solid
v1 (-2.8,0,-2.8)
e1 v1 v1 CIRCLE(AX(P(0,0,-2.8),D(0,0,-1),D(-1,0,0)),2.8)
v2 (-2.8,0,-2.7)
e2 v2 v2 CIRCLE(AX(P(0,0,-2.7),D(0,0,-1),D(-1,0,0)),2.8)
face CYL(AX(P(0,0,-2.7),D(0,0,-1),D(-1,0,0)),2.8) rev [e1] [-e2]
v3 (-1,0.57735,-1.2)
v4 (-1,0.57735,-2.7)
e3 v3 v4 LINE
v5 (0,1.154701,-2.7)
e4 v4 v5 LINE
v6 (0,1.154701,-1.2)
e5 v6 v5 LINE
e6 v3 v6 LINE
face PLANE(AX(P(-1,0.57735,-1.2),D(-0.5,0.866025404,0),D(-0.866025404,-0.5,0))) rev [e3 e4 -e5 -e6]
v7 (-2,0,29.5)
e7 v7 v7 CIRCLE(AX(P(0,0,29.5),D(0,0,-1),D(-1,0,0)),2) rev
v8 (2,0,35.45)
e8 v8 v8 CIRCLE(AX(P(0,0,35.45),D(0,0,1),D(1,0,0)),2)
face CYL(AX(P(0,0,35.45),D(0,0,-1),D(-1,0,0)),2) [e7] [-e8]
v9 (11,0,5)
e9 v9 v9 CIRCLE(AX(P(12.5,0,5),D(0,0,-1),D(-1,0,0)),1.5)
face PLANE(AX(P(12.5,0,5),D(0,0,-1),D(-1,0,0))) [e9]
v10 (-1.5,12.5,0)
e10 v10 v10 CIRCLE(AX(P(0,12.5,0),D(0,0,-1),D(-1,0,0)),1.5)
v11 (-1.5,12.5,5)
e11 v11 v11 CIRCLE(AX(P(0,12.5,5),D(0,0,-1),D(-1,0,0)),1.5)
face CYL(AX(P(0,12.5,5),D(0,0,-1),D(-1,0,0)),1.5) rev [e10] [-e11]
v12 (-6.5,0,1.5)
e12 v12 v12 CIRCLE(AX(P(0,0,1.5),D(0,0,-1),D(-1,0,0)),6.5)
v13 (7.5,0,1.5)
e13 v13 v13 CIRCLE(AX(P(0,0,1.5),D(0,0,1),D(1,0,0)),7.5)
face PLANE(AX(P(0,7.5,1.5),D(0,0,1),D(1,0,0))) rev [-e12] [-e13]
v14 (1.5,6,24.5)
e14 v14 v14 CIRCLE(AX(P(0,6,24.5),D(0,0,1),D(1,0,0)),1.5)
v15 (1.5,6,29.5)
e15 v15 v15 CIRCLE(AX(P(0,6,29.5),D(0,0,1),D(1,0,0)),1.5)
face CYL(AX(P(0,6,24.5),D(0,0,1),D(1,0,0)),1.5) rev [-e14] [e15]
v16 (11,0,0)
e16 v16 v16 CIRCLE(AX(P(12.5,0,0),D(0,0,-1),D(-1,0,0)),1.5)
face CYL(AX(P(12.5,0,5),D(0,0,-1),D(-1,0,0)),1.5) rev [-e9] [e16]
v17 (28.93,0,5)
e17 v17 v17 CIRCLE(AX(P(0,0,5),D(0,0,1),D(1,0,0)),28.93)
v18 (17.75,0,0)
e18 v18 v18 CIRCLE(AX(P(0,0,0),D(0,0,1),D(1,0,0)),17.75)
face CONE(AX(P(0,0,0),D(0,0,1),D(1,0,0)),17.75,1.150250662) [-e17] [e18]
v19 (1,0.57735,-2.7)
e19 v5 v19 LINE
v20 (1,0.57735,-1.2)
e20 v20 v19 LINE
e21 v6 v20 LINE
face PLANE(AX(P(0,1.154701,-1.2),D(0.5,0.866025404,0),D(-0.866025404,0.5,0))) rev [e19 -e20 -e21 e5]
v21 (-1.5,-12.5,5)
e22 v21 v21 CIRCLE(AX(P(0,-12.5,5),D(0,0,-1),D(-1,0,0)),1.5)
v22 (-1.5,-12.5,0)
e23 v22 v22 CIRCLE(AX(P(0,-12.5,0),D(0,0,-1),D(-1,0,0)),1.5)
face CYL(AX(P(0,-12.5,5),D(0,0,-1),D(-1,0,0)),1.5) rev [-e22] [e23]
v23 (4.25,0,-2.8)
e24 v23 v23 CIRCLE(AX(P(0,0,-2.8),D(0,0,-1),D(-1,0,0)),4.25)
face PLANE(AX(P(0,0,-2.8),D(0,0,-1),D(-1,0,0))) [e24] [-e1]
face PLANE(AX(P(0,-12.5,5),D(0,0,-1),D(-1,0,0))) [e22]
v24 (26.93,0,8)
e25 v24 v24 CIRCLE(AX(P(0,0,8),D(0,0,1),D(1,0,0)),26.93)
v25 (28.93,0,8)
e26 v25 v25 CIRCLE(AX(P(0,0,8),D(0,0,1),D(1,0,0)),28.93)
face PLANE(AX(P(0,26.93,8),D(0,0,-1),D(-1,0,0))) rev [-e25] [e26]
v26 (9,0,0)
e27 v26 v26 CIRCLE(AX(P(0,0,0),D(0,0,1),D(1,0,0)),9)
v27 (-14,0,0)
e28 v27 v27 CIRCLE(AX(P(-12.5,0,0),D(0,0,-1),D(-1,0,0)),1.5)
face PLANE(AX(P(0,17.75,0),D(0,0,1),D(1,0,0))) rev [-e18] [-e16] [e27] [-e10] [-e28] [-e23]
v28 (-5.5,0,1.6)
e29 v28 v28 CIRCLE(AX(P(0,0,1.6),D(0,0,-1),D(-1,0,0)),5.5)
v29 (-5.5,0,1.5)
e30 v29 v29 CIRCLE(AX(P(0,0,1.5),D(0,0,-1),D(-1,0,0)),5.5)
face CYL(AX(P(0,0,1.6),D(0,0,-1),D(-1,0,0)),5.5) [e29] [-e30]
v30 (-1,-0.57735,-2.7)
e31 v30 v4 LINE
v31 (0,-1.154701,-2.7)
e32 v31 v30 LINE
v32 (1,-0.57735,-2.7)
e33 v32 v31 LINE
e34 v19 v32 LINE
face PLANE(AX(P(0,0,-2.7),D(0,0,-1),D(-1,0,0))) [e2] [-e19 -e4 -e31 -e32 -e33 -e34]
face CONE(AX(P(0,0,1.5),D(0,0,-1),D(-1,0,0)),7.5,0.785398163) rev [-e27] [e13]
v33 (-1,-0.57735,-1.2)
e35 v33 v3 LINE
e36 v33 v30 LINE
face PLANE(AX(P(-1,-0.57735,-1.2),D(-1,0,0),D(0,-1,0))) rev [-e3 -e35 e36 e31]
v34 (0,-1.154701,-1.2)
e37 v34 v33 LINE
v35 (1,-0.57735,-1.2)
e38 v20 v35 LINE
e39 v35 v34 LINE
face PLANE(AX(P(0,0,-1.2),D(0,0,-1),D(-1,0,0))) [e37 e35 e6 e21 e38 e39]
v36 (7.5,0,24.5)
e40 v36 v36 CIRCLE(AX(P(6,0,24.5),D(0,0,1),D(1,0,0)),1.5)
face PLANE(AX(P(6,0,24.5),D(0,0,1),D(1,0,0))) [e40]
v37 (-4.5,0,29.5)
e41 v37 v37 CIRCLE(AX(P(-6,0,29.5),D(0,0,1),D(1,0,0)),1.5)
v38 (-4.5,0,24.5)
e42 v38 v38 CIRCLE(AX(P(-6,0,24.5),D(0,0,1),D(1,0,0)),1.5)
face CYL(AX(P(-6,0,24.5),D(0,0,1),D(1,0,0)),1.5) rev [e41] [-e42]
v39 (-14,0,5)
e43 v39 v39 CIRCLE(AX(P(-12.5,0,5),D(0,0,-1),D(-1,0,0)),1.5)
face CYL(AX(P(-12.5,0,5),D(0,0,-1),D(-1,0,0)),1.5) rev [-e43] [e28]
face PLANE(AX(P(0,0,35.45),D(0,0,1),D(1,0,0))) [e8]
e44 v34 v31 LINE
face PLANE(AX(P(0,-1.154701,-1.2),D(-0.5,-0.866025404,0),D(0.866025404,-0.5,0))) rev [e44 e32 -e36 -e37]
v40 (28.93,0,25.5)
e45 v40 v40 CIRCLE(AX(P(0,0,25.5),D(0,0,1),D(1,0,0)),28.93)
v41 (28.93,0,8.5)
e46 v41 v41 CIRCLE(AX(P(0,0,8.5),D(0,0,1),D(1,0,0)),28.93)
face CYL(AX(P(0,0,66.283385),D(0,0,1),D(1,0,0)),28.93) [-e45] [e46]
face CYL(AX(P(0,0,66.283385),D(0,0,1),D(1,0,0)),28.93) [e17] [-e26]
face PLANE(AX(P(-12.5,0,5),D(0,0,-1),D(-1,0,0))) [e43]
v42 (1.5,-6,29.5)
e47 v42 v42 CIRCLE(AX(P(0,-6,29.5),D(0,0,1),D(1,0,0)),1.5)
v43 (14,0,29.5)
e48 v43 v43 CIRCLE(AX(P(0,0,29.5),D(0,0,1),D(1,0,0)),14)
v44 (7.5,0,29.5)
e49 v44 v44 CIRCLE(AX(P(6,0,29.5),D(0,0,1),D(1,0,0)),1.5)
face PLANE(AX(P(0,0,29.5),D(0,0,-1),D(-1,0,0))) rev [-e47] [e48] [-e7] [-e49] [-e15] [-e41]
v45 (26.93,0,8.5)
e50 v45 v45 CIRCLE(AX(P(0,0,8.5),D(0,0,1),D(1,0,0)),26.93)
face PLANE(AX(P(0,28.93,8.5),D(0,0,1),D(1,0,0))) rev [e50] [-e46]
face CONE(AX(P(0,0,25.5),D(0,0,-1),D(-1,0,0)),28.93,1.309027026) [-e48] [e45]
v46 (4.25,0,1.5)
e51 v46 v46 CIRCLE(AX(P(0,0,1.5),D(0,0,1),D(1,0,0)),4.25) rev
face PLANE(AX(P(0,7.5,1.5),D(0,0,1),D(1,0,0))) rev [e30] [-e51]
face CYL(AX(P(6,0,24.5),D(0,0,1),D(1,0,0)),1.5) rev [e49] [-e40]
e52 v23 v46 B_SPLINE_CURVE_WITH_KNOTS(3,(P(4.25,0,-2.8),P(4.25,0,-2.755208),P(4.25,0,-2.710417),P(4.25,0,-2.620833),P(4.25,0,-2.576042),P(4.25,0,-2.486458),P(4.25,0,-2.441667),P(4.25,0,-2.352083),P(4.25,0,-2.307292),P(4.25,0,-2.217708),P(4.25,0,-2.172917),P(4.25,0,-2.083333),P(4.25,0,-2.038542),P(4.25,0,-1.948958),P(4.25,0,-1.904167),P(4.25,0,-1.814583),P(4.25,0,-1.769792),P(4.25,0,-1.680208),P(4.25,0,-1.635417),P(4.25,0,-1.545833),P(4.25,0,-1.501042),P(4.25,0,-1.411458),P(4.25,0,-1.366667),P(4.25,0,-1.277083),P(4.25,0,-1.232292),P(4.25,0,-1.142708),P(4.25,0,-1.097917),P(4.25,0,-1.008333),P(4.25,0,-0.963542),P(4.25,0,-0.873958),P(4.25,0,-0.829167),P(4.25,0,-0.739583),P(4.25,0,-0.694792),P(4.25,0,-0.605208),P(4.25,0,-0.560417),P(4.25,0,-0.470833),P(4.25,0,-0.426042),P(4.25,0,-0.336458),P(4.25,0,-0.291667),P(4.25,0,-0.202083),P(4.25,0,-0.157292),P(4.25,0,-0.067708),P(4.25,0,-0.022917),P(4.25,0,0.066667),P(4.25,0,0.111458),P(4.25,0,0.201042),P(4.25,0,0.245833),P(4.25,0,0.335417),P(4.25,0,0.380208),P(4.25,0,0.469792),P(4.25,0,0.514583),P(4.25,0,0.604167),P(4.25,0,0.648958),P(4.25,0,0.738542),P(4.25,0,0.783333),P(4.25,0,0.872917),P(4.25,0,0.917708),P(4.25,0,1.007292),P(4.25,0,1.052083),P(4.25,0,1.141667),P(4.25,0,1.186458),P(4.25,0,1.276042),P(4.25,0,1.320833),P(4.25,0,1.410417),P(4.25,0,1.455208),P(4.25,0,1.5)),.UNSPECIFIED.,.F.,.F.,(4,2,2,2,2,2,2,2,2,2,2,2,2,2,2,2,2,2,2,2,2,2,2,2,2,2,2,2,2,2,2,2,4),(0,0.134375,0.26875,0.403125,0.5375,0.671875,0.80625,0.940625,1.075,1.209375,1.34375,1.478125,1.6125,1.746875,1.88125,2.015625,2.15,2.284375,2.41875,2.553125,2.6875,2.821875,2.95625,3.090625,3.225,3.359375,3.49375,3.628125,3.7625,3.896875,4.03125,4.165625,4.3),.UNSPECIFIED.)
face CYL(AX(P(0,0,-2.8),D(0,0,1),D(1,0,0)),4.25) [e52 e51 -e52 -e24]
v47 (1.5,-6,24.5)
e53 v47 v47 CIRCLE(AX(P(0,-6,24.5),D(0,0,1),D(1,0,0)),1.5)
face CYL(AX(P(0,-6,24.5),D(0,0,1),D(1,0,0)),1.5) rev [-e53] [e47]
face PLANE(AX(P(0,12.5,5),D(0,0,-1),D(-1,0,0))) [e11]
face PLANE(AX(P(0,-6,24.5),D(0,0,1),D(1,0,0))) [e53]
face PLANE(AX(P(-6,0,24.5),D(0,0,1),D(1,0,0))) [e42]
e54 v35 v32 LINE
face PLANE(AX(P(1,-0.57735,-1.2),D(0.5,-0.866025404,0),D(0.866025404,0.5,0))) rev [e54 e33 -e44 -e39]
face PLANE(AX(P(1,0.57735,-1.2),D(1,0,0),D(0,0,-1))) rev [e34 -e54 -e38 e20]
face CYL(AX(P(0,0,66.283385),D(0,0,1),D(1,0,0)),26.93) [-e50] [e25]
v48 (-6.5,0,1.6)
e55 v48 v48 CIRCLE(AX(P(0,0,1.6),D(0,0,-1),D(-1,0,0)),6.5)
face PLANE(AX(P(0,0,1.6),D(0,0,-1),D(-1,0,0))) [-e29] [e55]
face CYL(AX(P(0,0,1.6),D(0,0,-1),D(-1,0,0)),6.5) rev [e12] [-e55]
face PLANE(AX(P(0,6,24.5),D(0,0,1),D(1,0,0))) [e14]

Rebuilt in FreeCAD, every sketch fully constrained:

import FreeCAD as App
import Part
import Sketcher

V = App.Vector
Q = App.Units.Quantity


def add_polygon(sketch, points):
    """Adds a closed chain of lines whose ends are joined by coincident constraints."""
    first, n = sketch.GeometryCount, len(points)
    for a, b in zip(points, points[1:] + points[:1]):
        sketch.addGeometry(Part.LineSegment(App.Vector(*a, 0), App.Vector(*b, 0)), False)
    for i in range(n):
        sketch.addConstraint(Sketcher.Constraint("Coincident", first + i, 2, first + (i + 1) % n, 1))

doc = App.newDocument("Part")
body = doc.addObject("PartDesign::Body", "Body")

sketch1 = body.newObject("Sketcher::SketchObject", "Sketch")
sketch1.AttachmentSupport = (doc.getObject("YZ_Plane"), [""])
sketch1.MapMode = "FlatFace"
add_polygon(sketch1, [(14, 29.5), (0, 29.5), (0, 1.5), (7.5, 1.5), (9, 0), (17.8, 0), (28.9, 5), (28.9, 8), (26.9, 8), (26.9, 8.5), (28.9, 8.5), (28.9, 25.5)])
sketch1.addConstraint(Sketcher.Constraint("Horizontal", 0))
sketch1.addConstraint(Sketcher.Constraint("Vertical", 1))
sketch1.addConstraint(Sketcher.Constraint("Horizontal", 2))
sketch1.addConstraint(Sketcher.Constraint("Horizontal", 4))
sketch1.addConstraint(Sketcher.Constraint("Vertical", 6))
sketch1.addConstraint(Sketcher.Constraint("Horizontal", 7))
sketch1.addConstraint(Sketcher.Constraint("Vertical", 8))
sketch1.addConstraint(Sketcher.Constraint("Horizontal", 9))
sketch1.addConstraint(Sketcher.Constraint("Vertical", 10))
sketch1.addConstraint(Sketcher.Constraint("PointOnObject", 0, 2, -2))
sketch1.addConstraint(Sketcher.Constraint("PointOnObject", 3, 2, -1))
sketch1.addConstraint(Sketcher.Constraint("Vertical", 6, 2, 9, 2))
sketch1.addConstraint(Sketcher.Constraint("DistanceX", 0, 2, 0, 1, 14.0))
sketch1.addConstraint(Sketcher.Constraint("DistanceX", 7, 2, 7, 1, 2.0))
sketch1.addConstraint(Sketcher.Constraint("DistanceY", 1, 2, 1, 1, 28.0))
sketch1.addConstraint(Sketcher.Constraint("DistanceY", 6, 1, 6, 2, 3.0))
sketch1.addConstraint(Sketcher.Constraint("DistanceY", 10, 1, 10, 2, 17.0))
sketch1.addConstraint(Sketcher.Constraint("Angle", 3, Q("-45 deg")))
sketch1.addConstraint(Sketcher.Constraint("DistanceX", 2, 1, 2, 2, 7.5))
sketch1.addConstraint(Sketcher.Constraint("DistanceY", 8, 1, 8, 2, 0.5))
sketch1.addConstraint(Sketcher.Constraint("DistanceX", -1, 1, 3, 2, 9.0))
sketch1.addConstraint(Sketcher.Constraint("DistanceY", -1, 1, 5, 2, 5.0))
sketch1.addConstraint(Sketcher.Constraint("DistanceX", 4, 1, 4, 2, 8.75))
sketch1.addConstraint(Sketcher.Constraint("DistanceX", -1, 1, 5, 2, 28.93))
revolution = body.newObject("PartDesign::Revolution", "Revolution")
revolution.Profile = sketch1
revolution.ReferenceAxis = (sketch1, ["V_Axis"])
revolution.Angle = 360

sketch2 = body.newObject("Sketcher::SketchObject", "Sketch001")
sketch2.AttachmentSupport = (doc.getObject("XY_Plane"), [""])
sketch2.MapMode = "FlatFace"
sketch2.AttachmentOffset = App.Placement(V(0, 0, 29.5), App.Rotation())
sketch2.addGeometry(Part.Circle(V(0, 0, 0), V(0, 0, 1), 2), False)
sketch2.addConstraint(Sketcher.Constraint("Coincident", 0, 3, -1, 1))
sketch2.addConstraint(Sketcher.Constraint("Diameter", 0, 4.0))
pad1 = body.newObject("PartDesign::Pad", "Pad")
pad1.Profile = sketch2
pad1.Length = 5.95

sketch3 = body.newObject("Sketcher::SketchObject", "Sketch002")
sketch3.AttachmentSupport = (doc.getObject("XY_Plane"), [""])
sketch3.MapMode = "FlatFace"
sketch3.AttachmentOffset = App.Placement(V(0, 0, 29.5), App.Rotation())
sketch3.addGeometry(Part.Circle(V(0, 6, 0), V(0, 0, 1), 1.5), False)
sketch3.addGeometry(Part.Circle(V(6, 0, 0), V(0, 0, 1), 1.5), False)
sketch3.addGeometry(Part.Circle(V(0, -6, 0), V(0, 0, 1), 1.5), False)
sketch3.addGeometry(Part.Circle(V(-6, 0, 0), V(0, 0, 1), 1.5), False)
sketch3.addConstraint(Sketcher.Constraint("Equal", 0, 1))
sketch3.addConstraint(Sketcher.Constraint("Equal", 1, 2))
sketch3.addConstraint(Sketcher.Constraint("Equal", 2, 3))
sketch3.addConstraint(Sketcher.Constraint("Symmetric", 0, 3, 2, 3, -1, 1))
sketch3.addConstraint(Sketcher.Constraint("Symmetric", 1, 3, 3, 3, -1, 1))
sketch3.addConstraint(Sketcher.Constraint("PointOnObject", 0, 3, -2))
sketch3.addConstraint(Sketcher.Constraint("PointOnObject", 1, 3, -1))
sketch3.addConstraint(Sketcher.Constraint("Diameter", 0, 3.0))
sketch3.addConstraint(Sketcher.Constraint("DistanceY", -1, 1, 0, 3, 6.0))
sketch3.addConstraint(Sketcher.Constraint("DistanceX", -1, 1, 1, 3, 6.0))
pocket1 = body.newObject("PartDesign::Pocket", "Pocket")
pocket1.Profile = sketch3
pocket1.Length = 5

sketch4 = body.newObject("Sketcher::SketchObject", "Sketch003")
sketch4.AttachmentSupport = (doc.getObject("XY_Plane"), [""])
sketch4.MapMode = "FlatFace"
sketch4.addGeometry(Part.Circle(V(0, 12.5, 0), V(0, 0, 1), 1.5), False)
sketch4.addGeometry(Part.Circle(V(-12.5, 0, 0), V(0, 0, 1), 1.5), False)
sketch4.addGeometry(Part.Circle(V(0, -12.5, 0), V(0, 0, 1), 1.5), False)
sketch4.addGeometry(Part.Circle(V(12.5, 0, 0), V(0, 0, 1), 1.5), False)
sketch4.addConstraint(Sketcher.Constraint("Equal", 0, 1))
sketch4.addConstraint(Sketcher.Constraint("Equal", 1, 2))
sketch4.addConstraint(Sketcher.Constraint("Equal", 2, 3))
sketch4.addConstraint(Sketcher.Constraint("Symmetric", 0, 3, 2, 3, -1, 1))
sketch4.addConstraint(Sketcher.Constraint("Symmetric", 1, 3, 3, 3, -1, 1))
sketch4.addConstraint(Sketcher.Constraint("PointOnObject", 0, 3, -2))
sketch4.addConstraint(Sketcher.Constraint("PointOnObject", 1, 3, -1))
sketch4.addConstraint(Sketcher.Constraint("Diameter", 0, 3.0))
sketch4.addConstraint(Sketcher.Constraint("DistanceY", 2, 3, 0, 3, 25.0))
sketch4.addConstraint(Sketcher.Constraint("DistanceX", 1, 3, 3, 3, 25.0))
pocket2 = body.newObject("PartDesign::Pocket", "Pocket001")
pocket2.Profile = sketch4
pocket2.Length = 5
pocket2.Reversed = True

sketch5 = body.newObject("Sketcher::SketchObject", "Sketch004")
sketch5.AttachmentSupport = (doc.getObject("XY_Plane"), [""])
sketch5.MapMode = "FlatFace"
sketch5.AttachmentOffset = App.Placement(V(0, 0, 1.5), App.Rotation())
sketch5.addGeometry(Part.Circle(V(0, 0, 0), V(0, 0, 1), 4.2), False)
sketch5.addConstraint(Sketcher.Constraint("Coincident", 0, 3, -1, 1))
sketch5.addConstraint(Sketcher.Constraint("Diameter", 0, 8.5))
pad2 = body.newObject("PartDesign::Pad", "Pad001")
pad2.Profile = sketch5
pad2.Length = 4.3
pad2.Reversed = True

sketch6 = body.newObject("Sketcher::SketchObject", "Sketch005")
sketch6.AttachmentSupport = (doc.getObject("XY_Plane"), [""])
sketch6.MapMode = "FlatFace"
sketch6.AttachmentOffset = App.Placement(V(0, 0, -2.8), App.Rotation())
sketch6.addGeometry(Part.Circle(V(0, 0, 0), V(0, 0, 1), 2.8), False)
sketch6.addConstraint(Sketcher.Constraint("Coincident", 0, 3, -1, 1))
sketch6.addConstraint(Sketcher.Constraint("Diameter", 0, 5.6))
pocket3 = body.newObject("PartDesign::Pocket", "Pocket002")
pocket3.Profile = sketch6
pocket3.Length = 0.1
pocket3.Reversed = True

sketch7 = body.newObject("Sketcher::SketchObject", "Sketch006")
sketch7.AttachmentSupport = (doc.getObject("XY_Plane"), [""])
sketch7.MapMode = "FlatFace"
sketch7.AttachmentOffset = App.Placement(V(0, 0, -2.7), App.Rotation())
add_polygon(sketch7, [(0, -1.2), (-1, -0.6), (-1, 0.6), (0, 1.2), (1, 0.6), (1, -0.6)])
sketch7.addConstraint(Sketcher.Constraint("Vertical", 1))
sketch7.addConstraint(Sketcher.Constraint("Vertical", 4))
sketch7.addConstraint(Sketcher.Constraint("Symmetric", 0, 2, 3, 2, -1, 1))
sketch7.addConstraint(Sketcher.Constraint("Symmetric", 2, 2, 5, 2, -1, 1))
sketch7.addConstraint(Sketcher.Constraint("PointOnObject", 2, 2, -2))
sketch7.addConstraint(Sketcher.Constraint("Parallel", 2, 5))
sketch7.addConstraint(Sketcher.Constraint("Horizontal", 1, 2, 3, 2))
sketch7.addConstraint(Sketcher.Constraint("Angle", 0, Q("150 deg")))
sketch7.addConstraint(Sketcher.Constraint("DistanceX", 0, 2, -1, 1, 1.0))
sketch7.addConstraint(Sketcher.Constraint("DistanceY", 1, 1, 1, 2, 1.154701))
pocket4 = body.newObject("PartDesign::Pocket", "Pocket003")
pocket4.Profile = sketch7
pocket4.Length = 1.5
pocket4.Reversed = True

sketch8 = body.newObject("Sketcher::SketchObject", "Sketch007")
sketch8.AttachmentSupport = (doc.getObject("XY_Plane"), [""])
sketch8.MapMode = "FlatFace"
sketch8.AttachmentOffset = App.Placement(V(0, 0, 1.5), App.Rotation())
sketch8.addGeometry(Part.Circle(V(0, 0, 0), V(0, 0, 1), 6), False)
sketch8.addGeometry(Part.Circle(V(0, 0, 0), V(0, 0, 1), 6), False)
sketch8.addConstraint(Sketcher.Constraint("Coincident", 0, 3, -1, 1))
sketch8.addConstraint(Sketcher.Constraint("Coincident", 1, 3, -1, 1))
sketch8.addConstraint(Sketcher.Constraint("Diameter", 0, 13.0))
sketch8.addConstraint(Sketcher.Constraint("Diameter", 1, 11.0))
pocket5 = body.newObject("PartDesign::Pocket", "Pocket004")
pocket5.Profile = sketch8
pocket5.Length = 0.1
pocket5.Reversed = True

doc.recompute()
